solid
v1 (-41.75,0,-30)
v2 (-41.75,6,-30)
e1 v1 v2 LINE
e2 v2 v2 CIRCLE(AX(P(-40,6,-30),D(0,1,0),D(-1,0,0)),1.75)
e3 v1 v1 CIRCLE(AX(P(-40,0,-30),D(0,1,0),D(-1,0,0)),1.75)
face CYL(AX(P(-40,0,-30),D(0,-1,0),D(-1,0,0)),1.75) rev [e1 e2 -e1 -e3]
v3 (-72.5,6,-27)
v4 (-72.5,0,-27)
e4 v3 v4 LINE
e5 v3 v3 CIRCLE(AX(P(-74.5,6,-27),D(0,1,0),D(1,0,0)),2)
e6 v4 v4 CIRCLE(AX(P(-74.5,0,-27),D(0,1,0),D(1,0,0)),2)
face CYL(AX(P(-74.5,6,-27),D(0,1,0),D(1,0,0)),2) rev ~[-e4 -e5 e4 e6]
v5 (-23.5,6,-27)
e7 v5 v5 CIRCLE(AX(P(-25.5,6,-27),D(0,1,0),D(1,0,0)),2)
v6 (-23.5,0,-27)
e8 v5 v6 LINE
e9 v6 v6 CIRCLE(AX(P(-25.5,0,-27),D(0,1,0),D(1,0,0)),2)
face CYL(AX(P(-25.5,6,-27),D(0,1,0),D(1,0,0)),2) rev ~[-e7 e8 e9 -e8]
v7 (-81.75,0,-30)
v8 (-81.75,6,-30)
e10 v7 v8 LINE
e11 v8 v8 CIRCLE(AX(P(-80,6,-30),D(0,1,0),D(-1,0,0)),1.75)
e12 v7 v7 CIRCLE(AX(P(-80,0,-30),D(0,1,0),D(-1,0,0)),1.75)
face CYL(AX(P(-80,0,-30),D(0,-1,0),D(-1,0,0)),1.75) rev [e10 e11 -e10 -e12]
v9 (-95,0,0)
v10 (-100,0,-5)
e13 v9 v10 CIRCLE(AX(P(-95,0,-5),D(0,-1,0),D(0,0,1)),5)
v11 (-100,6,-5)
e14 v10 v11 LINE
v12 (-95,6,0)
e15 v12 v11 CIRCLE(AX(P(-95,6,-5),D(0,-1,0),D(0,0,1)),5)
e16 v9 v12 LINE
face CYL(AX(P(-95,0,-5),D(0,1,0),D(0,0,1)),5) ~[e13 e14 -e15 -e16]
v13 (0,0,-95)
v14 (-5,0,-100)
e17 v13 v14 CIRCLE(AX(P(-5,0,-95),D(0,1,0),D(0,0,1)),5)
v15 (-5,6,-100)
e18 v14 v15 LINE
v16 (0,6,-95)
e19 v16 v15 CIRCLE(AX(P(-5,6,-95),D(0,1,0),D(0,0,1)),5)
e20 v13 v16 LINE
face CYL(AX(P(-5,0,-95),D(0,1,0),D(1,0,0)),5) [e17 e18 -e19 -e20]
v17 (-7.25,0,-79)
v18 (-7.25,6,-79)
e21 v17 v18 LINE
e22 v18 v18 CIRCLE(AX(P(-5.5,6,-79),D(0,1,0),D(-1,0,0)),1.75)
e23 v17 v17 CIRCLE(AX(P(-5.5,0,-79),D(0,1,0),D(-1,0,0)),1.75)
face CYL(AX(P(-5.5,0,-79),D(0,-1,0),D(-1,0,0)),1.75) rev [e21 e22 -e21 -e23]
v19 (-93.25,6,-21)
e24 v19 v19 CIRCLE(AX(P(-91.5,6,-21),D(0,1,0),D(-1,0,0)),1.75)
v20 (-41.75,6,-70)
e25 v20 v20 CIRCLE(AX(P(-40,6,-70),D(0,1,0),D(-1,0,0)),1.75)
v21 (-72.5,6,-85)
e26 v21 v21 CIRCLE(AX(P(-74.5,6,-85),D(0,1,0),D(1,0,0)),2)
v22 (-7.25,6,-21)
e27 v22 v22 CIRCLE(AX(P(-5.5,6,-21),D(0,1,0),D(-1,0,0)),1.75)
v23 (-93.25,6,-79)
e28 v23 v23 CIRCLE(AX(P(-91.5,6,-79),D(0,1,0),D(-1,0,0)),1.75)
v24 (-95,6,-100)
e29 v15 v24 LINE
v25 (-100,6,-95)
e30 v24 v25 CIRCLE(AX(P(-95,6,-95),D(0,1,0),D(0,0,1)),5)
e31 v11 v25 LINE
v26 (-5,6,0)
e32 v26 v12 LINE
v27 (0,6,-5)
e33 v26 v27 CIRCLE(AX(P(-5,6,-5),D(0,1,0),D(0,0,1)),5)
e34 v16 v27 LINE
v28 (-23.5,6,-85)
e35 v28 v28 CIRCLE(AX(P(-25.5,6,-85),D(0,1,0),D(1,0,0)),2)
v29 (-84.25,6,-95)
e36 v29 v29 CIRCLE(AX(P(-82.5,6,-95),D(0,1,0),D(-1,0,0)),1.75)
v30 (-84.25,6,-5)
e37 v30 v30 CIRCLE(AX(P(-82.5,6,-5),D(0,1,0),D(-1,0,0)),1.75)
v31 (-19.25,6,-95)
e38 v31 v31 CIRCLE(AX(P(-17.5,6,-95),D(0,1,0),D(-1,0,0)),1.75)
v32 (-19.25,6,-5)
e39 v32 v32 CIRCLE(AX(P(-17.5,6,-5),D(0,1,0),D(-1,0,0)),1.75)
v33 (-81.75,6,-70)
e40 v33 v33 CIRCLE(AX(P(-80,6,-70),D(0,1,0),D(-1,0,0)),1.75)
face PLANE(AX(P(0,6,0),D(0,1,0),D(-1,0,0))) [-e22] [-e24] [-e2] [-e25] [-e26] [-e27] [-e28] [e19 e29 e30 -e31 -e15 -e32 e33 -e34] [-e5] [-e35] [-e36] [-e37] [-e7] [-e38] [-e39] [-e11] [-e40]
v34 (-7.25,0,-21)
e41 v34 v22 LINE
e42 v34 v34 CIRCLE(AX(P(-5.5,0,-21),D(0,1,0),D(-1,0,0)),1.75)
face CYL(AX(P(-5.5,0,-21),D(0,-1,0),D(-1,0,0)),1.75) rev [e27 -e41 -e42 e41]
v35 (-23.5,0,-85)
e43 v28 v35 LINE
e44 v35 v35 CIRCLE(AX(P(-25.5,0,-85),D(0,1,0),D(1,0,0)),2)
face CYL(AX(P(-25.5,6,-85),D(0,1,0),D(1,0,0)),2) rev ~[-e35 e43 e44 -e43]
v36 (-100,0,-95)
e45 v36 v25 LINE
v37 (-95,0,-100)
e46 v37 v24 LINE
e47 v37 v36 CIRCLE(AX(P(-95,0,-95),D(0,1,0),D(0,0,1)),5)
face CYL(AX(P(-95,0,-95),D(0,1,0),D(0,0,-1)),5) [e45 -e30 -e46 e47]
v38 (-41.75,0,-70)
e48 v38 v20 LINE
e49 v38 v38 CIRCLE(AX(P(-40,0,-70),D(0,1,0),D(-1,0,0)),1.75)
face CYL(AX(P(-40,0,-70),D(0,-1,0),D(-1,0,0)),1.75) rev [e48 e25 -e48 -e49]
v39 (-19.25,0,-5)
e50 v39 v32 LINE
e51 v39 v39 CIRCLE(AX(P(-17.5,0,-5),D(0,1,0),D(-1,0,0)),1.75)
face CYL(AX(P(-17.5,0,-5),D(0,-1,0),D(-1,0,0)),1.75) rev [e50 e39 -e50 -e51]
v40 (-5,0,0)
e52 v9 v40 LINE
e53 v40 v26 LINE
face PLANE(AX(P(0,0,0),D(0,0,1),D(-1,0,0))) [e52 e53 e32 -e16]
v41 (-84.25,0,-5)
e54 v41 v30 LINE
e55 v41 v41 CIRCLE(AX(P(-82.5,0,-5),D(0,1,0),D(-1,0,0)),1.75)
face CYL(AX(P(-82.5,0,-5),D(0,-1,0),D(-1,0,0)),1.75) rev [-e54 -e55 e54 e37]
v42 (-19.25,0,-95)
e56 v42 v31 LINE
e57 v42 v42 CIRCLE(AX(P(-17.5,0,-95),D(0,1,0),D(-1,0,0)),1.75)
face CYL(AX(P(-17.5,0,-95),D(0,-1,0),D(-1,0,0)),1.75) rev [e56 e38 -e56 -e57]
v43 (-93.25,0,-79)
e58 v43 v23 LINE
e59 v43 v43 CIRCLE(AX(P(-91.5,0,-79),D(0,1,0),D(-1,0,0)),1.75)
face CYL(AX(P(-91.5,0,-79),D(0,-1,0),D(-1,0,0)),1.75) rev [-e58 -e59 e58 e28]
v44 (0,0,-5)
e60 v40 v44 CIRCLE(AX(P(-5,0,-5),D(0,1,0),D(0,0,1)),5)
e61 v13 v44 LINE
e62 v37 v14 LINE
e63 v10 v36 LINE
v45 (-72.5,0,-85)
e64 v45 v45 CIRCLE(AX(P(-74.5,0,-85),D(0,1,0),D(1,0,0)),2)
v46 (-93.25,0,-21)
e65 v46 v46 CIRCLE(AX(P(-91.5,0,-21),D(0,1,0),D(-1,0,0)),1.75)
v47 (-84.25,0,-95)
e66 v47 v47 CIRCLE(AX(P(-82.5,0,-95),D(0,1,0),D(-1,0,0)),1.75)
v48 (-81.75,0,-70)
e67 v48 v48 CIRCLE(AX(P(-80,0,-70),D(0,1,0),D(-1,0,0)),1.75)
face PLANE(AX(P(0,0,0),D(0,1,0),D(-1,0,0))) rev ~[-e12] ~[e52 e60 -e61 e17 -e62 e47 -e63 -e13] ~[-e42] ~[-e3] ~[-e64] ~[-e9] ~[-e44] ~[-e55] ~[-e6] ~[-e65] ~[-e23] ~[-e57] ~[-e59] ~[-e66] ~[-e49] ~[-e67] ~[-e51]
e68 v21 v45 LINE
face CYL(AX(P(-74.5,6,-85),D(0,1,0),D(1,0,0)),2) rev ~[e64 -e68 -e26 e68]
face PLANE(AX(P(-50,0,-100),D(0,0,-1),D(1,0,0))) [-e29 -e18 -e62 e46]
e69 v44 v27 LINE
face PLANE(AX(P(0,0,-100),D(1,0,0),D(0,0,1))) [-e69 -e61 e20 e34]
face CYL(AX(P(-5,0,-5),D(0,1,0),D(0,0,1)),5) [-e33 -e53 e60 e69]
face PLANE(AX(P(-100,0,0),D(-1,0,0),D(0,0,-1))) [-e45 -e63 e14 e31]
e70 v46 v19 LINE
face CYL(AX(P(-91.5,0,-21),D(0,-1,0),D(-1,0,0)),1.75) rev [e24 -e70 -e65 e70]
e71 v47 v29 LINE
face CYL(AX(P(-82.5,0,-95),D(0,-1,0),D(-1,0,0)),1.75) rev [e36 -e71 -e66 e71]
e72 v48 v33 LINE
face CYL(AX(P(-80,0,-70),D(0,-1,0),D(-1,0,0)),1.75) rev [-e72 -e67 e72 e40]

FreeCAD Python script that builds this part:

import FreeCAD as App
import Part
import Sketcher
Q = App.Units.Quantity


def edges_at(feature, points):
    """Names of the edges that pass closest to the given points."""
    edges = feature.Shape.Edges
    near = lambda p: min(range(len(edges)), key=lambda i: edges[i].distToShape(Part.Vertex(*p))[0])
    return sorted({f"Edge{near(p) + 1}" for p in points})


def add_polygon(sketch, points):
    """Adds a closed chain of lines whose ends are joined by coincident constraints."""
    first, n = sketch.GeometryCount, len(points)
    for a, b in zip(points, points[1:] + points[:1]):
        sketch.addGeometry(Part.LineSegment(App.Vector(*a, 0), App.Vector(*b, 0)), False)
    for i in range(n):
        sketch.addConstraint(Sketcher.Constraint("Coincident", first + i, 2, first + (i + 1) % n, 1))

doc = App.newDocument("Part")
params = doc.addObject("Spreadsheet::Sheet", "Params")
for row, (alias, value) in enumerate([
    ("sketch1_diameter", "3.5 mm"),
    ("sketch1_width", "100 mm"),
    ("pad1_length", "6 mm"),
    ("fillet_radius", "5 mm"),
    ("sketch2_diameter", "4 mm"),
], start=1):
    params.set(f"A{row}", alias)
    params.set(f"B{row}", "=" + value)
    params.setAlias(f"B{row}", alias)

body = doc.addObject("PartDesign::Body", "Body")

# Sketch on XZ plane
sketch1 = doc.addObject("Sketcher::SketchObject", "Sketch")
body.addObject(sketch1)
sketch1.AttachmentSupport = (doc.XZ_Plane, [""])
sketch1.MapMode = "FlatFace"
add_polygon(sketch1, [(0, 0), (0, -100), (-100, -100), (-100, 0)])  # lines 0-3
sketch1.addGeometry(Part.Circle(App.Vector(-17.5, -95, 0), App.Vector(0, 0, 1), 1.75), False)  # 4
sketch1.addGeometry(Part.Circle(App.Vector(-5.5, -79, 0), App.Vector(0, 0, 1), 1.75), False)  # 5
sketch1.addGeometry(Part.Circle(App.Vector(-40, -70, 0), App.Vector(0, 0, 1), 1.75), False)  # 6
sketch1.addGeometry(Part.Circle(App.Vector(-40, -30, 0), App.Vector(0, 0, 1), 1.75), False)  # 7
sketch1.addGeometry(Part.Circle(App.Vector(-5.5, -21, 0), App.Vector(0, 0, 1), 1.75), False)  # 8
sketch1.addGeometry(Part.Circle(App.Vector(-17.5, -5, 0), App.Vector(0, 0, 1), 1.75), False)  # 9
sketch1.addGeometry(Part.Circle(App.Vector(-82.5, -5, 0), App.Vector(0, 0, 1), 1.75), False)  # 10
sketch1.addGeometry(Part.Circle(App.Vector(-82.5, -95, 0), App.Vector(0, 0, 1), 1.75), False)  # 11
sketch1.addGeometry(Part.Circle(App.Vector(-91.5, -79, 0), App.Vector(0, 0, 1), 1.75), False)  # 12
sketch1.addGeometry(Part.Circle(App.Vector(-80, -70, 0), App.Vector(0, 0, 1), 1.75), False)  # 13
sketch1.addGeometry(Part.Circle(App.Vector(-80, -30, 0), App.Vector(0, 0, 1), 1.75), False)  # 14
sketch1.addGeometry(Part.Circle(App.Vector(-91.5, -21, 0), App.Vector(0, 0, 1), 1.75), False)  # 15
sketch1.addConstraint([
    Sketcher.Constraint("Vertical", 0),
    Sketcher.Constraint("Horizontal", 1),
    Sketcher.Constraint("Vertical", 2),
    Sketcher.Constraint("Horizontal", 3),
    Sketcher.Constraint("Coincident", 3, 2, -1, 1),
    Sketcher.Constraint("Equal", 4, 5),
    Sketcher.Constraint("Equal", 5, 6),
    Sketcher.Constraint("Equal", 6, 7),
    Sketcher.Constraint("Equal", 7, 8),
    Sketcher.Constraint("Equal", 8, 9),
    Sketcher.Constraint("Equal", 9, 10),
    Sketcher.Constraint("Equal", 10, 11),
    Sketcher.Constraint("Equal", 11, 12),
    Sketcher.Constraint("Equal", 12, 13),
    Sketcher.Constraint("Equal", 13, 14),
    Sketcher.Constraint("Equal", 14, 15),
    Sketcher.Constraint("Horizontal", 9, 3, 10, 3),
    Sketcher.Constraint("Horizontal", 4, 3, 11, 3),
    Sketcher.Constraint("Horizontal", 5, 3, 12, 3),
    Sketcher.Constraint("Horizontal", 6, 3, 13, 3),
    Sketcher.Constraint("Horizontal", 7, 3, 14, 3),
    Sketcher.Constraint("Horizontal", 8, 3, 15, 3),
    Sketcher.Constraint("Vertical", 6, 3, 7, 3),
    Sketcher.Constraint("Vertical", 5, 3, 8, 3),
    Sketcher.Constraint("Vertical", 4, 3, 9, 3),
    Sketcher.Constraint("Vertical", 10, 3, 11, 3),
    Sketcher.Constraint("Vertical", 13, 3, 14, 3),
    Sketcher.Constraint("Vertical", 12, 3, 15, 3),
    Sketcher.Constraint("Equal", 3, 0),
    Sketcher.Constraint("Diameter", 4, Q("3.5 mm")),
    Sketcher.Constraint("DistanceX", 1, 2, 1, 1, Q("100 mm")),
    Sketcher.Constraint("DistanceX", 6, 3, -1, 1, Q("40 mm")),
    Sketcher.Constraint("DistanceY", 7, 3, -1, 1, Q("30 mm")),
    Sketcher.Constraint("DistanceY", 8, 3, -1, 1, Q("21 mm")),
    Sketcher.Constraint("DistanceY", 9, 3, -1, 1, Q("5 mm")),
    Sketcher.Constraint("DistanceY", 6, 3, 7, 3, Q("40 mm")),
    Sketcher.Constraint("DistanceY", 4, 3, 7, 3, Q("65 mm")),
    Sketcher.Constraint("DistanceY", 5, 3, 8, 3, Q("58 mm")),
    Sketcher.Constraint("DistanceX", 10, 3, 9, 3, Q("65 mm")),
    Sketcher.Constraint("DistanceX", 13, 3, 6, 3, Q("40 mm")),
    Sketcher.Constraint("DistanceX", 4, 3, -1, 1, Q("17.5 mm")),
    Sketcher.Constraint("DistanceX", 1, 2, 12, 3, Q("8.5 mm")),
    Sketcher.Constraint("DistanceX", 4, 3, 5, 3, Q("12 mm")),
])
sketch1.setExpression("Constraints[33]", "Params.sketch1_diameter")
sketch1.setExpression("Constraints[34]", "Params.sketch1_width")
pad1 = doc.addObject("PartDesign::Pad", "Pad")
body.addObject(pad1)
pad1.Profile = sketch1
pad1.setExpression("Length", "Params.pad1_length")
pad1.Reversed = True
doc.recompute()

fillet = doc.addObject("PartDesign::Fillet", "Fillet")
body.addObject(fillet)
fillet.Base = (pad1, edges_at(pad1, [
    (0, 3, -100),
    (-100, 3, -100),
    (0, 3, 0),
    (-100, 3, 0),
]))
fillet.setExpression("Radius", "Params.fillet_radius")

# Sketch on XZ plane
sketch2 = doc.addObject("Sketcher::SketchObject", "Sketch001")
body.addObject(sketch2)
sketch2.AttachmentSupport = (doc.XZ_Plane, [""])
sketch2.MapMode = "FlatFace"
sketch2.AttachmentOffset = App.Placement(App.Vector(0, 0, -6), App.Rotation())
sketch2.addGeometry([
    Part.Circle(App.Vector(-74.5, -27, 0), App.Vector(0, 0, 1), 2),
    Part.Circle(App.Vector(-25.5, -27, 0), App.Vector(0, 0, 1), 2),
    Part.Circle(App.Vector(-74.5, -85, 0), App.Vector(0, 0, 1), 2),
    Part.Circle(App.Vector(-25.5, -85, 0), App.Vector(0, 0, 1), 2),
], False)
sketch2.addConstraint([
    Sketcher.Constraint("Equal", 0, 1),
    Sketcher.Constraint("Equal", 1, 2),
    Sketcher.Constraint("Equal", 2, 3),
    Sketcher.Constraint("Horizontal", 0, 3, 1, 3),
    Sketcher.Constraint("Horizontal", 2, 3, 3, 3),
    Sketcher.Constraint("Vertical", 0, 3, 2, 3),
    Sketcher.Constraint("Vertical", 1, 3, 3, 3),
    Sketcher.Constraint("Diameter", 0, Q("4 mm")),
    Sketcher.Constraint("DistanceY", 0, 3, -1, 1, Q("27 mm")),
    Sketcher.Constraint("DistanceX", 0, 3, 1, 3, Q("49 mm")),
    Sketcher.Constraint("DistanceY", 2, 3, 0, 3, Q("58 mm")),
    Sketcher.Constraint("DistanceX", 1, 3, -1, 1, Q("25.5 mm")),
])
sketch2.setExpression("Constraints[7]", "Params.sketch2_diameter")
pocket1 = doc.addObject("PartDesign::Pocket", "Pocket")
body.addObject(pocket1)
pocket1.Profile = sketch2
pocket1.Type = "ThroughAll"
pocket1.Reversed = True

doc.recompute()
